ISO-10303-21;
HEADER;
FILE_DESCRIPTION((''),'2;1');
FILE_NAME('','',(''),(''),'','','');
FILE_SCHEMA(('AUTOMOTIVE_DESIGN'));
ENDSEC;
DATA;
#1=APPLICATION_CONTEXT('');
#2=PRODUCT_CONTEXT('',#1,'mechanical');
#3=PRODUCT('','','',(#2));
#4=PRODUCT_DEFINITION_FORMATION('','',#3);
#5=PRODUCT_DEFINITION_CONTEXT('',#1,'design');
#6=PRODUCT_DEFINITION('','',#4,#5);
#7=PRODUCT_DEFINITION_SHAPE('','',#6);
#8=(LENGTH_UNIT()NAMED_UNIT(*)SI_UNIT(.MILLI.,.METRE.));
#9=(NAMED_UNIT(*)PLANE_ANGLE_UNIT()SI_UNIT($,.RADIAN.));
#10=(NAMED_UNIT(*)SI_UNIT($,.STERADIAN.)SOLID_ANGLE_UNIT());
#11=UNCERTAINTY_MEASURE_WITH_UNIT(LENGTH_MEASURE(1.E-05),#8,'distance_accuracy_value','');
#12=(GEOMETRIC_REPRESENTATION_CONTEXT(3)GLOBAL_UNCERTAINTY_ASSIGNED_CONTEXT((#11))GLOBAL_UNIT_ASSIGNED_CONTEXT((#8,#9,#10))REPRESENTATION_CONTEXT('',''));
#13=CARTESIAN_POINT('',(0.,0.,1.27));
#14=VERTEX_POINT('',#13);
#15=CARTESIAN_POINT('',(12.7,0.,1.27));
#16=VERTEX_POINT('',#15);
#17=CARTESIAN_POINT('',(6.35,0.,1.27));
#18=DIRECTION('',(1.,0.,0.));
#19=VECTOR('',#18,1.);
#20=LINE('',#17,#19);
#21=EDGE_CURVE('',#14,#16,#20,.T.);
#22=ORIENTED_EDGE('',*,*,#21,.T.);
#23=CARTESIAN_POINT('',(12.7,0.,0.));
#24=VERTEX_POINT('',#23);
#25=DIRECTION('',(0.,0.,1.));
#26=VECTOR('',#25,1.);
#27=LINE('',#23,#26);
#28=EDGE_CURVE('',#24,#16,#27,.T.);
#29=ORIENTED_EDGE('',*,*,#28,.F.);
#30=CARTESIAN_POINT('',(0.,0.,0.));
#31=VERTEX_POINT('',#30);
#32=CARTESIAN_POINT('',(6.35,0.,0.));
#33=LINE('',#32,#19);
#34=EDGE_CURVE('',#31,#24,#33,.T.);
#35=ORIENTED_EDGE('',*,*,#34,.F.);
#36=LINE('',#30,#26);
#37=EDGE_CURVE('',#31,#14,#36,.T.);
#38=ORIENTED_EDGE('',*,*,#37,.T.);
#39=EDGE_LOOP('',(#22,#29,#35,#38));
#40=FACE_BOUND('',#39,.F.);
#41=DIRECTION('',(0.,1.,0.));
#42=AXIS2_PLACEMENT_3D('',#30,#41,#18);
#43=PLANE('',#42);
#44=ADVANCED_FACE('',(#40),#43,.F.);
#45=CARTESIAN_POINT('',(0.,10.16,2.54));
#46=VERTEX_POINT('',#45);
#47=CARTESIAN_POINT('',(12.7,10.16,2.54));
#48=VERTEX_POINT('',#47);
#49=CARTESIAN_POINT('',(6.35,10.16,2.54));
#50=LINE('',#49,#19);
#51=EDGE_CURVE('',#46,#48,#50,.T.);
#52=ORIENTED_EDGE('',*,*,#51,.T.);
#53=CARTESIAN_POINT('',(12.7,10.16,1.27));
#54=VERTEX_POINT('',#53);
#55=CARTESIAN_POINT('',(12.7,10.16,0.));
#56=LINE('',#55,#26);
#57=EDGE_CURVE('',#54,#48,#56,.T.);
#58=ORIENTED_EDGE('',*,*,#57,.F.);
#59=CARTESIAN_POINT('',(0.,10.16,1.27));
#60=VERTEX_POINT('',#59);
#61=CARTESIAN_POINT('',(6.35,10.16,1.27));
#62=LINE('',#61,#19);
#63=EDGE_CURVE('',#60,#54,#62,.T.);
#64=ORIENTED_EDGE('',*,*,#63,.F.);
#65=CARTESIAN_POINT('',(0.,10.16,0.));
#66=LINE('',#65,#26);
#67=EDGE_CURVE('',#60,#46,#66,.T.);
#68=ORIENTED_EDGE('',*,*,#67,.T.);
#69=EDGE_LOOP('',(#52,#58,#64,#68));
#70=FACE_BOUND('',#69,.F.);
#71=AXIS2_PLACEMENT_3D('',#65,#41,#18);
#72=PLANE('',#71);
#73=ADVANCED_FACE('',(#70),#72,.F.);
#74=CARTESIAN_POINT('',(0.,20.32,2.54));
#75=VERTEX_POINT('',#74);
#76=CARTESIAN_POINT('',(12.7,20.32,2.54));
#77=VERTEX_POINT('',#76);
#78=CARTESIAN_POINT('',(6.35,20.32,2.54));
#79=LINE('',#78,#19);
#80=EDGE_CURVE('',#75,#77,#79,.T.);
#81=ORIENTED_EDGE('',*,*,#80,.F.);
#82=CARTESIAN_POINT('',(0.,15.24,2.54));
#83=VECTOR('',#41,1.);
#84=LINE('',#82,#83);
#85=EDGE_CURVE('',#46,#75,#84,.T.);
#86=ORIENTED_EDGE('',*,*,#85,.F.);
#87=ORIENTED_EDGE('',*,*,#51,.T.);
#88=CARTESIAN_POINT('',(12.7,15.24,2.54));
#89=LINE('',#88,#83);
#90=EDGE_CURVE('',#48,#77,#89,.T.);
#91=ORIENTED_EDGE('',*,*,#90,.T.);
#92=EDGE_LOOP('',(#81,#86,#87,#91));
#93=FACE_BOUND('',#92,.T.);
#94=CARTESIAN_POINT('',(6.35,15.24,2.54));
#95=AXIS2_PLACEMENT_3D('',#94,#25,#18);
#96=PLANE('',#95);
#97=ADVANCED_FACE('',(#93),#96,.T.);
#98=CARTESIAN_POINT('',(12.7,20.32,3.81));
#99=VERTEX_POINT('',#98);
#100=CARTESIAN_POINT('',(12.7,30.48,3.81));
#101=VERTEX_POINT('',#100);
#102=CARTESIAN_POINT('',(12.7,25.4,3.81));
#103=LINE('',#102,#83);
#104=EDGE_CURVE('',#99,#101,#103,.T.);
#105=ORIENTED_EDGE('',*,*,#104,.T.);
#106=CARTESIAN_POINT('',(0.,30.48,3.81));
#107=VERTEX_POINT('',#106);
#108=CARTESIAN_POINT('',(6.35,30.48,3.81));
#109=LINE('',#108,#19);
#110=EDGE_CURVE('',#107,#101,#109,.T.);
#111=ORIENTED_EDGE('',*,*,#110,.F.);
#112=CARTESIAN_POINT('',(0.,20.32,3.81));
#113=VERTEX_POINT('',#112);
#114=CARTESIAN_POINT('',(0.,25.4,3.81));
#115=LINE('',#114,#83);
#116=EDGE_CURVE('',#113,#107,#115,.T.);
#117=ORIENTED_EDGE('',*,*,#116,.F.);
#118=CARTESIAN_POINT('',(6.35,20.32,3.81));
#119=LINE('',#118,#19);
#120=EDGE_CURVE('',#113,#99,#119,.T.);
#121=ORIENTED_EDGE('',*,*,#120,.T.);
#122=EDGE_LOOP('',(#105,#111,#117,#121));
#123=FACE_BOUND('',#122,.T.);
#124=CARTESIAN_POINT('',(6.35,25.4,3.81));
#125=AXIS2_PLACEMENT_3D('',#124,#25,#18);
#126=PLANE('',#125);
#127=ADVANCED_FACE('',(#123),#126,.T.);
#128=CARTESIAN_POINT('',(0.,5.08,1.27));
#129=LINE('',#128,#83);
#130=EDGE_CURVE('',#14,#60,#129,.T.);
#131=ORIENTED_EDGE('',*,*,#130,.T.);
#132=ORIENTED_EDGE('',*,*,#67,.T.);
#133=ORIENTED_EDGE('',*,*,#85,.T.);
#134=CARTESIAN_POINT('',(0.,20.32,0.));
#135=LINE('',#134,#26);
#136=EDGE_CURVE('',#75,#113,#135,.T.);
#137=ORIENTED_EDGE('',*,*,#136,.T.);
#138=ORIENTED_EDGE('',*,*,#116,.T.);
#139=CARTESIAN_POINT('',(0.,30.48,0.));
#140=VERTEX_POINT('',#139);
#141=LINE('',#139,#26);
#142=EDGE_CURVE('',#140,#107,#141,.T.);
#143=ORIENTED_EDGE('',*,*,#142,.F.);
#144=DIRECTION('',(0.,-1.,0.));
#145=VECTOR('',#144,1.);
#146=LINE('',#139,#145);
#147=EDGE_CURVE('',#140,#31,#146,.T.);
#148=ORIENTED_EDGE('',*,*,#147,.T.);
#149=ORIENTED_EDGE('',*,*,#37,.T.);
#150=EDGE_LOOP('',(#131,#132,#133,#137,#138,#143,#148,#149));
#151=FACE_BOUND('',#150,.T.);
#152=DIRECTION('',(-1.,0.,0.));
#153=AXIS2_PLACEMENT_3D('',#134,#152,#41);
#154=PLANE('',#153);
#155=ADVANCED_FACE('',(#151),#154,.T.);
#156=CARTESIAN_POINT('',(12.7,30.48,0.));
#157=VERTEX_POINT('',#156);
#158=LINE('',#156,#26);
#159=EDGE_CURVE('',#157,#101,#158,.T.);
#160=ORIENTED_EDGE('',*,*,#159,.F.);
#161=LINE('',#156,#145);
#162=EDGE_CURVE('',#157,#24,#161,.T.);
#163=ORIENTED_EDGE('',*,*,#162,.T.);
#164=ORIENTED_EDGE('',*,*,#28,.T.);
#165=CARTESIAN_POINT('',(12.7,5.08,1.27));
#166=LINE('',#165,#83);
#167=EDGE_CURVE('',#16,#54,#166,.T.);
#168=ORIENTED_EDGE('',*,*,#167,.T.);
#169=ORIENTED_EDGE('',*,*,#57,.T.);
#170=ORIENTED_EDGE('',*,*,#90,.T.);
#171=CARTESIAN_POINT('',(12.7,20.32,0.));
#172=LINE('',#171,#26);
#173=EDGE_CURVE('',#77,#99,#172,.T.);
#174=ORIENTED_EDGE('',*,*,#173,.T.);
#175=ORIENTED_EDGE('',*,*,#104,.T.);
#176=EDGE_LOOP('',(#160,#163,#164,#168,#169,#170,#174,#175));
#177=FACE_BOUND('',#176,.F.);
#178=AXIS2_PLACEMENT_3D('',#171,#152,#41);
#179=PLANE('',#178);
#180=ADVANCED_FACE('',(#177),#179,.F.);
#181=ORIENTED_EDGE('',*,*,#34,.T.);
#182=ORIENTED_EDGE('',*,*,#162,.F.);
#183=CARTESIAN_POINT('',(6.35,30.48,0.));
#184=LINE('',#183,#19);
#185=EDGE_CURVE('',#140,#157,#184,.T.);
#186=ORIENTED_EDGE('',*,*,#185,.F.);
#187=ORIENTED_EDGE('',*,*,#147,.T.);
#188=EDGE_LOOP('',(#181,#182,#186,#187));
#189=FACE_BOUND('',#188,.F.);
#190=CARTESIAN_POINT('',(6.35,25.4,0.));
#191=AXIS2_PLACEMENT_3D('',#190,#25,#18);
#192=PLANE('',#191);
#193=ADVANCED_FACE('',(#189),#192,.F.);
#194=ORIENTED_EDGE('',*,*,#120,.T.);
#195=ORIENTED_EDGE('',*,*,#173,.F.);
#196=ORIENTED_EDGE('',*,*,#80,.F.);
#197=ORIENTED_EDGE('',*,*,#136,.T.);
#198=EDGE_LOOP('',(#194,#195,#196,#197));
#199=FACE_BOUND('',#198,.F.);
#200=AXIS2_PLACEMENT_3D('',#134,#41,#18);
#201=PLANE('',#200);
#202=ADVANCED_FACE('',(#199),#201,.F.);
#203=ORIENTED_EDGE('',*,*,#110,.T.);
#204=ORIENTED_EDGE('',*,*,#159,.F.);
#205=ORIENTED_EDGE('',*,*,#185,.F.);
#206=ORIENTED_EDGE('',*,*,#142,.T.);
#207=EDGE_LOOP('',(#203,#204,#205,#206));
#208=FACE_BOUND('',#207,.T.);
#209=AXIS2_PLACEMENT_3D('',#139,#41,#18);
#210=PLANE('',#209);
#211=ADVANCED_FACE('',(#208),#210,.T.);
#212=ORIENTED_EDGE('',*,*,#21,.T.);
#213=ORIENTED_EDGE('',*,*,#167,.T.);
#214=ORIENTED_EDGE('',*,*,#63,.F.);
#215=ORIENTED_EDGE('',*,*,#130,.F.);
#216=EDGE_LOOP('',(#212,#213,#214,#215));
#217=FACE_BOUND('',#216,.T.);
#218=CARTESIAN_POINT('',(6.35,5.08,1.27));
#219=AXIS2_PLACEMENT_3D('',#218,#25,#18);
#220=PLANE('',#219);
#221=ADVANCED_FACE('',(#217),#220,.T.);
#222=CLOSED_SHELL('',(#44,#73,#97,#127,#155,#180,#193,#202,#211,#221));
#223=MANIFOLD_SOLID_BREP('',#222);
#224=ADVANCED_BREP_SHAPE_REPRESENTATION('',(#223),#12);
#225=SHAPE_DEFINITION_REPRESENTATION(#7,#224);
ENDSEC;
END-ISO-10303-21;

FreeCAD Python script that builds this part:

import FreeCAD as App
import Part
import Sketcher
from FreeCAD import Vector
Q = App.Units.Quantity


def add_polygon(sketch, points):
    """Adds a closed chain of lines whose ends are joined by coincident constraints."""
    first, n = sketch.GeometryCount, len(points)
    for a, b in zip(points, points[1:] + points[:1]):
        sketch.addGeometry(Part.LineSegment(App.Vector(*a, 0), App.Vector(*b, 0)), False)
    for i in range(n):
        sketch.addConstraint(Sketcher.Constraint("Coincident", first + i, 2, first + (i + 1) % n, 1))

doc = App.newDocument("Part")
body = doc.addObject("PartDesign::Body", "Body")

sketch1 = doc.addObject("Sketcher::SketchObject", "Sketch")
body.addObject(sketch1)
sketch1.AttachmentSupport = (doc.XY_Plane, [""])
sketch1.MapMode = "FlatFace"
add_polygon(sketch1, [(0, 10.16), (0, 0), (12.7, 0), (12.7, 10.16)])
sketch1.addConstraint(Sketcher.Constraint("Vertical", 0))
sketch1.addConstraint(Sketcher.Constraint("Horizontal", 1))
sketch1.addConstraint(Sketcher.Constraint("Vertical", 2))
sketch1.addConstraint(Sketcher.Constraint("Horizontal", 3))
sketch1.addConstraint(Sketcher.Constraint("Coincident", 0, 2, -1, 1))
sketch1.addConstraint(Sketcher.Constraint("DistanceX", 1, 1, 1, 2, Q("0.5 in")))
sketch1.addConstraint(Sketcher.Constraint("DistanceY", 0, 2, 0, 1, Q("0.4 in")))
pad1 = doc.addObject("PartDesign::Pad", "Pad")
body.addObject(pad1)
pad1.Profile = sketch1
pad1.Length = Q("0.05 in")

sketch2 = doc.addObject("Sketcher::SketchObject", "Sketch001")
body.addObject(sketch2)
sketch2.AttachmentSupport = (doc.XY_Plane, [""])
sketch2.MapMode = "FlatFace"
add_polygon(sketch2, [(0, 20.32), (0, 10.16), (12.7, 10.16), (12.7, 20.32)])
sketch2.addConstraint(Sketcher.Constraint("Vertical", 0))
sketch2.addConstraint(Sketcher.Constraint("Horizontal", 1))
sketch2.addConstraint(Sketcher.Constraint("Vertical", 2))
sketch2.addConstraint(Sketcher.Constraint("Horizontal", 3))
sketch2.addConstraint(Sketcher.Constraint("PointOnObject", 0, 2, -2))
sketch2.addConstraint(Sketcher.Constraint("DistanceX", 1, 1, 1, 2, Q("0.5 in")))
sketch2.addConstraint(Sketcher.Constraint("DistanceY", 0, 2, 0, 1, Q("0.4 in")))
sketch2.addConstraint(Sketcher.Constraint("DistanceY", -1, 1, 0, 2, Q("0.4 in")))
pad2 = doc.addObject("PartDesign::Pad", "Pad001")
body.addObject(pad2)
pad2.Profile = sketch2
pad2.Length = Q("0.1 in")

sketch3 = doc.addObject("Sketcher::SketchObject", "Sketch002")
body.addObject(sketch3)
sketch3.AttachmentSupport = (doc.XY_Plane, [""])
sketch3.MapMode = "FlatFace"
add_polygon(sketch3, [(0, 30.48), (0, 20.32), (12.7, 20.32), (12.7, 30.48)])
sketch3.addConstraint(Sketcher.Constraint("Vertical", 0))
sketch3.addConstraint(Sketcher.Constraint("Horizontal", 1))
sketch3.addConstraint(Sketcher.Constraint("Vertical", 2))
sketch3.addConstraint(Sketcher.Constraint("Horizontal", 3))
sketch3.addConstraint(Sketcher.Constraint("PointOnObject", 0, 2, -2))
sketch3.addConstraint(Sketcher.Constraint("DistanceX", 1, 1, 1, 2, Q("0.5 in")))
sketch3.addConstraint(Sketcher.Constraint("DistanceY", 0, 2, 0, 1, Q("0.4 in")))
sketch3.addConstraint(Sketcher.Constraint("DistanceY", -1, 1, 0, 2, Q("0.8 in")))
pad3 = doc.addObject("PartDesign::Pad", "Pad002")
body.addObject(pad3)
pad3.Profile = sketch3
pad3.Length = Q("0.15 in")

doc.recompute()
